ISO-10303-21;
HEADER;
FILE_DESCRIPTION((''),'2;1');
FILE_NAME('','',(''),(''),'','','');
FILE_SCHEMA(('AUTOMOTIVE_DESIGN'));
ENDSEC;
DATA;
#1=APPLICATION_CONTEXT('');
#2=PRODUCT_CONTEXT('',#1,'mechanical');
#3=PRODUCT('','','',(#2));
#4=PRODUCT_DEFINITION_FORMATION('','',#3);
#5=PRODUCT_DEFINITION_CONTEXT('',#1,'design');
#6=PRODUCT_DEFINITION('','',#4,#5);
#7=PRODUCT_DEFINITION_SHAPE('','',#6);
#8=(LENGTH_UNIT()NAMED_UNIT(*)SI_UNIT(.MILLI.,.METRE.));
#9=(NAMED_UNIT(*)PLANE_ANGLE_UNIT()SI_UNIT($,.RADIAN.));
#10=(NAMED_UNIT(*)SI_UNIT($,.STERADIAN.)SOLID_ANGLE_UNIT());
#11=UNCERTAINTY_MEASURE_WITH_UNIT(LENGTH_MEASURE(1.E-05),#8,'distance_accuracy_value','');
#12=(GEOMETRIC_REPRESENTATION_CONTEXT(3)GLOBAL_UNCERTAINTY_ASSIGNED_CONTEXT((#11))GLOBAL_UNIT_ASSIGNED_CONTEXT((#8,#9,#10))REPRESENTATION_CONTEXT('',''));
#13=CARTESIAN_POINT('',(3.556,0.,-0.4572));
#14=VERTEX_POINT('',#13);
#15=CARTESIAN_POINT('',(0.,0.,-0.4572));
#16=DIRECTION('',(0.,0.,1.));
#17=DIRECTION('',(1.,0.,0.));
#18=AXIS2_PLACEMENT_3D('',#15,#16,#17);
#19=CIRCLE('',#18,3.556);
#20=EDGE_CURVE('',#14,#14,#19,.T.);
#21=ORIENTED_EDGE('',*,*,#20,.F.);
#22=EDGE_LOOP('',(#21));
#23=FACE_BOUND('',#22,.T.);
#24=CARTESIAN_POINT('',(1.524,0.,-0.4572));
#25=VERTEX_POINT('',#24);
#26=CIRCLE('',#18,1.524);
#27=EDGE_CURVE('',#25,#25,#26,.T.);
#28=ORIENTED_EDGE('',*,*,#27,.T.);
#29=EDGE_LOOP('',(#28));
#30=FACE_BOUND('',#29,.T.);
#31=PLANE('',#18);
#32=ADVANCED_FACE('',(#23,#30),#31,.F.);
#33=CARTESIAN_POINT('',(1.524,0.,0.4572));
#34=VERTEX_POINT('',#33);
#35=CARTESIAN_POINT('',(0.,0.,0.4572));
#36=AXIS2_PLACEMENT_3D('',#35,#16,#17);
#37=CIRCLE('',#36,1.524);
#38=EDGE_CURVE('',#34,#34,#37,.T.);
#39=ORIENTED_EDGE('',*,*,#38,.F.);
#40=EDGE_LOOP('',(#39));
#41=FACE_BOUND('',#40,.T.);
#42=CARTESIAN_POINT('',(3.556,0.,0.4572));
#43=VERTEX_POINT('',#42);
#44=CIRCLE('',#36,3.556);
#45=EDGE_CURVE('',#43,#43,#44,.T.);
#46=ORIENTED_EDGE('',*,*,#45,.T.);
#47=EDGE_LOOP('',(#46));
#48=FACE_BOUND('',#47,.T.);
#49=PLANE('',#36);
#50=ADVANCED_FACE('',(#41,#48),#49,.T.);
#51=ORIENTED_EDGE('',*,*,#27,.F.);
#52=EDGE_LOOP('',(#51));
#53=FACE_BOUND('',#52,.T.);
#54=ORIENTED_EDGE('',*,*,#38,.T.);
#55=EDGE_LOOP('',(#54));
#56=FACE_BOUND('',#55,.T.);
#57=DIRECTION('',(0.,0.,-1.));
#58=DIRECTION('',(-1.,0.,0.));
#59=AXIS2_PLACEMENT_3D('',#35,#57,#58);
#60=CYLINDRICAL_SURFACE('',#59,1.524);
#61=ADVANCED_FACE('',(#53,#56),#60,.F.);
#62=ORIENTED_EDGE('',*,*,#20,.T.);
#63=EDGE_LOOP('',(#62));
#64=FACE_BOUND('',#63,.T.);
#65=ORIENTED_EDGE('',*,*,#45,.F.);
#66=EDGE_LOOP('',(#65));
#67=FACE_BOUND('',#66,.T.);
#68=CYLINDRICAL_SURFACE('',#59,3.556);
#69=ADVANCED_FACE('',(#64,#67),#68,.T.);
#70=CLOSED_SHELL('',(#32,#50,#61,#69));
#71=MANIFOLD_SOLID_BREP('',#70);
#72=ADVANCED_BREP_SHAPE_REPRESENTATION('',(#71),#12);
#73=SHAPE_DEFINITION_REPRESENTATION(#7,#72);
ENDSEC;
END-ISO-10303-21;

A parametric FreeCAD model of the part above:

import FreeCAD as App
import Part
import Sketcher
Q = App.Units.Quantity

doc = App.newDocument("Part")
body = doc.addObject("PartDesign::Body", "Body")

# Sketch on XY plane
sketch1 = doc.addObject("Sketcher::SketchObject", "Sketch")
body.addObject(sketch1)
sketch1.AttachmentSupport = (doc.XY_Plane, [""])
sketch1.MapMode = "FlatFace"
sketch1.addGeometry(Part.Circle(App.Vector(0, 0, 0), App.Vector(0, 0, 1), 3.6), False)
sketch1.addGeometry(Part.Circle(App.Vector(0, 0, 0), App.Vector(0, 0, 1), 1.5), False)
sketch1.addConstraint(Sketcher.Constraint("Coincident", 0, 3, -1, 1))
sketch1.addConstraint(Sketcher.Constraint("Coincident", 1, 3, -1, 1))
sketch1.addConstraint(Sketcher.Constraint("Diameter", 0, Q("0.28 in")))
sketch1.addConstraint(Sketcher.Constraint("Diameter", 1, Q("0.12 in")))
pad1 = doc.addObject("PartDesign::Pad", "Pad")
body.addObject(pad1)
pad1.Profile = sketch1
pad1.Type = "TwoLengths"
pad1.Length = Q("0.018 in")
pad1.Length2 = Q("0.018 in")

doc.recompute()
